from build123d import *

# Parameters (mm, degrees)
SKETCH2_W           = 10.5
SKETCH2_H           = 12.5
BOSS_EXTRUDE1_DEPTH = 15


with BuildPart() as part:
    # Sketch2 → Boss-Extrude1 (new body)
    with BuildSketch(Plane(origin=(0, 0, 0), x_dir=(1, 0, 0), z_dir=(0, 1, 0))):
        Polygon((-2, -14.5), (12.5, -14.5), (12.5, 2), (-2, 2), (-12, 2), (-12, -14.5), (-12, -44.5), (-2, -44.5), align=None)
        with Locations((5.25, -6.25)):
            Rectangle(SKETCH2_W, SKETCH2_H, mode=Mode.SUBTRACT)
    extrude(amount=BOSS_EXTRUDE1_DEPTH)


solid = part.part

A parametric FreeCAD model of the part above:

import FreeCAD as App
import Part
import Sketcher

V = App.Vector


def add_polygon(sketch, points):
    """Adds a closed chain of lines whose ends are joined by coincident constraints."""
    first, n = sketch.GeometryCount, len(points)
    for a, b in zip(points, points[1:] + points[:1]):
        sketch.addGeometry(Part.LineSegment(App.Vector(*a, 0), App.Vector(*b, 0)), False)
    for i in range(n):
        sketch.addConstraint(Sketcher.Constraint("Coincident", first + i, 2, first + (i + 1) % n, 1))

doc = App.newDocument("Part")
body = doc.addObject("PartDesign::Body", "Body")

sketch1 = body.newObject("Sketcher::SketchObject", "Sketch")
sketch1.AttachmentSupport = (doc.getObject("XZ_Plane"), [""])
sketch1.MapMode = "FlatFace"
add_polygon(sketch1, [(-2, 14.5), (12.5, 14.5), (12.5, -2), (-12, -2), (-12, 44.5), (-2, 44.5)])
add_polygon(sketch1, [(10.5, 12.5), (0, 12.5), (0, 0), (10.5, 0)])
sketch1.addConstraint(Sketcher.Constraint("Horizontal", 0))
sketch1.addConstraint(Sketcher.Constraint("Vertical", 1))
sketch1.addConstraint(Sketcher.Constraint("Horizontal", 2))
sketch1.addConstraint(Sketcher.Constraint("Vertical", 3))
sketch1.addConstraint(Sketcher.Constraint("Horizontal", 4))
sketch1.addConstraint(Sketcher.Constraint("Vertical", 5))
sketch1.addConstraint(Sketcher.Constraint("Horizontal", 6))
sketch1.addConstraint(Sketcher.Constraint("Vertical", 7))
sketch1.addConstraint(Sketcher.Constraint("Horizontal", 8))
sketch1.addConstraint(Sketcher.Constraint("Vertical", 9))
sketch1.addConstraint(Sketcher.Constraint("Coincident", 7, 2, -1, 1))
sketch1.addConstraint(Sketcher.Constraint("DistanceX", 4, 1, 4, 2, 10.0))
sketch1.addConstraint(Sketcher.Constraint("DistanceY", 5, 2, 5, 1, 30.0))
sketch1.addConstraint(Sketcher.Constraint("DistanceX", 0, 1, 0, 2, 14.5))
sketch1.addConstraint(Sketcher.Constraint("DistanceX", 6, 2, 6, 1, 10.5))
sketch1.addConstraint(Sketcher.Constraint("DistanceY", 1, 2, 1, 1, 16.5))
sketch1.addConstraint(Sketcher.Constraint("DistanceY", 7, 2, 7, 1, 12.5))
sketch1.addConstraint(Sketcher.Constraint("DistanceY", 1, 2, -1, 1, 2.0))
sketch1.addConstraint(Sketcher.Constraint("DistanceX", 2, 2, -1, 1, 12.0))
pad1 = body.newObject("PartDesign::Pad", "Pad")
pad1.Profile = sketch1
pad1.Length = 15
pad1.Reversed = True

doc.recompute()
